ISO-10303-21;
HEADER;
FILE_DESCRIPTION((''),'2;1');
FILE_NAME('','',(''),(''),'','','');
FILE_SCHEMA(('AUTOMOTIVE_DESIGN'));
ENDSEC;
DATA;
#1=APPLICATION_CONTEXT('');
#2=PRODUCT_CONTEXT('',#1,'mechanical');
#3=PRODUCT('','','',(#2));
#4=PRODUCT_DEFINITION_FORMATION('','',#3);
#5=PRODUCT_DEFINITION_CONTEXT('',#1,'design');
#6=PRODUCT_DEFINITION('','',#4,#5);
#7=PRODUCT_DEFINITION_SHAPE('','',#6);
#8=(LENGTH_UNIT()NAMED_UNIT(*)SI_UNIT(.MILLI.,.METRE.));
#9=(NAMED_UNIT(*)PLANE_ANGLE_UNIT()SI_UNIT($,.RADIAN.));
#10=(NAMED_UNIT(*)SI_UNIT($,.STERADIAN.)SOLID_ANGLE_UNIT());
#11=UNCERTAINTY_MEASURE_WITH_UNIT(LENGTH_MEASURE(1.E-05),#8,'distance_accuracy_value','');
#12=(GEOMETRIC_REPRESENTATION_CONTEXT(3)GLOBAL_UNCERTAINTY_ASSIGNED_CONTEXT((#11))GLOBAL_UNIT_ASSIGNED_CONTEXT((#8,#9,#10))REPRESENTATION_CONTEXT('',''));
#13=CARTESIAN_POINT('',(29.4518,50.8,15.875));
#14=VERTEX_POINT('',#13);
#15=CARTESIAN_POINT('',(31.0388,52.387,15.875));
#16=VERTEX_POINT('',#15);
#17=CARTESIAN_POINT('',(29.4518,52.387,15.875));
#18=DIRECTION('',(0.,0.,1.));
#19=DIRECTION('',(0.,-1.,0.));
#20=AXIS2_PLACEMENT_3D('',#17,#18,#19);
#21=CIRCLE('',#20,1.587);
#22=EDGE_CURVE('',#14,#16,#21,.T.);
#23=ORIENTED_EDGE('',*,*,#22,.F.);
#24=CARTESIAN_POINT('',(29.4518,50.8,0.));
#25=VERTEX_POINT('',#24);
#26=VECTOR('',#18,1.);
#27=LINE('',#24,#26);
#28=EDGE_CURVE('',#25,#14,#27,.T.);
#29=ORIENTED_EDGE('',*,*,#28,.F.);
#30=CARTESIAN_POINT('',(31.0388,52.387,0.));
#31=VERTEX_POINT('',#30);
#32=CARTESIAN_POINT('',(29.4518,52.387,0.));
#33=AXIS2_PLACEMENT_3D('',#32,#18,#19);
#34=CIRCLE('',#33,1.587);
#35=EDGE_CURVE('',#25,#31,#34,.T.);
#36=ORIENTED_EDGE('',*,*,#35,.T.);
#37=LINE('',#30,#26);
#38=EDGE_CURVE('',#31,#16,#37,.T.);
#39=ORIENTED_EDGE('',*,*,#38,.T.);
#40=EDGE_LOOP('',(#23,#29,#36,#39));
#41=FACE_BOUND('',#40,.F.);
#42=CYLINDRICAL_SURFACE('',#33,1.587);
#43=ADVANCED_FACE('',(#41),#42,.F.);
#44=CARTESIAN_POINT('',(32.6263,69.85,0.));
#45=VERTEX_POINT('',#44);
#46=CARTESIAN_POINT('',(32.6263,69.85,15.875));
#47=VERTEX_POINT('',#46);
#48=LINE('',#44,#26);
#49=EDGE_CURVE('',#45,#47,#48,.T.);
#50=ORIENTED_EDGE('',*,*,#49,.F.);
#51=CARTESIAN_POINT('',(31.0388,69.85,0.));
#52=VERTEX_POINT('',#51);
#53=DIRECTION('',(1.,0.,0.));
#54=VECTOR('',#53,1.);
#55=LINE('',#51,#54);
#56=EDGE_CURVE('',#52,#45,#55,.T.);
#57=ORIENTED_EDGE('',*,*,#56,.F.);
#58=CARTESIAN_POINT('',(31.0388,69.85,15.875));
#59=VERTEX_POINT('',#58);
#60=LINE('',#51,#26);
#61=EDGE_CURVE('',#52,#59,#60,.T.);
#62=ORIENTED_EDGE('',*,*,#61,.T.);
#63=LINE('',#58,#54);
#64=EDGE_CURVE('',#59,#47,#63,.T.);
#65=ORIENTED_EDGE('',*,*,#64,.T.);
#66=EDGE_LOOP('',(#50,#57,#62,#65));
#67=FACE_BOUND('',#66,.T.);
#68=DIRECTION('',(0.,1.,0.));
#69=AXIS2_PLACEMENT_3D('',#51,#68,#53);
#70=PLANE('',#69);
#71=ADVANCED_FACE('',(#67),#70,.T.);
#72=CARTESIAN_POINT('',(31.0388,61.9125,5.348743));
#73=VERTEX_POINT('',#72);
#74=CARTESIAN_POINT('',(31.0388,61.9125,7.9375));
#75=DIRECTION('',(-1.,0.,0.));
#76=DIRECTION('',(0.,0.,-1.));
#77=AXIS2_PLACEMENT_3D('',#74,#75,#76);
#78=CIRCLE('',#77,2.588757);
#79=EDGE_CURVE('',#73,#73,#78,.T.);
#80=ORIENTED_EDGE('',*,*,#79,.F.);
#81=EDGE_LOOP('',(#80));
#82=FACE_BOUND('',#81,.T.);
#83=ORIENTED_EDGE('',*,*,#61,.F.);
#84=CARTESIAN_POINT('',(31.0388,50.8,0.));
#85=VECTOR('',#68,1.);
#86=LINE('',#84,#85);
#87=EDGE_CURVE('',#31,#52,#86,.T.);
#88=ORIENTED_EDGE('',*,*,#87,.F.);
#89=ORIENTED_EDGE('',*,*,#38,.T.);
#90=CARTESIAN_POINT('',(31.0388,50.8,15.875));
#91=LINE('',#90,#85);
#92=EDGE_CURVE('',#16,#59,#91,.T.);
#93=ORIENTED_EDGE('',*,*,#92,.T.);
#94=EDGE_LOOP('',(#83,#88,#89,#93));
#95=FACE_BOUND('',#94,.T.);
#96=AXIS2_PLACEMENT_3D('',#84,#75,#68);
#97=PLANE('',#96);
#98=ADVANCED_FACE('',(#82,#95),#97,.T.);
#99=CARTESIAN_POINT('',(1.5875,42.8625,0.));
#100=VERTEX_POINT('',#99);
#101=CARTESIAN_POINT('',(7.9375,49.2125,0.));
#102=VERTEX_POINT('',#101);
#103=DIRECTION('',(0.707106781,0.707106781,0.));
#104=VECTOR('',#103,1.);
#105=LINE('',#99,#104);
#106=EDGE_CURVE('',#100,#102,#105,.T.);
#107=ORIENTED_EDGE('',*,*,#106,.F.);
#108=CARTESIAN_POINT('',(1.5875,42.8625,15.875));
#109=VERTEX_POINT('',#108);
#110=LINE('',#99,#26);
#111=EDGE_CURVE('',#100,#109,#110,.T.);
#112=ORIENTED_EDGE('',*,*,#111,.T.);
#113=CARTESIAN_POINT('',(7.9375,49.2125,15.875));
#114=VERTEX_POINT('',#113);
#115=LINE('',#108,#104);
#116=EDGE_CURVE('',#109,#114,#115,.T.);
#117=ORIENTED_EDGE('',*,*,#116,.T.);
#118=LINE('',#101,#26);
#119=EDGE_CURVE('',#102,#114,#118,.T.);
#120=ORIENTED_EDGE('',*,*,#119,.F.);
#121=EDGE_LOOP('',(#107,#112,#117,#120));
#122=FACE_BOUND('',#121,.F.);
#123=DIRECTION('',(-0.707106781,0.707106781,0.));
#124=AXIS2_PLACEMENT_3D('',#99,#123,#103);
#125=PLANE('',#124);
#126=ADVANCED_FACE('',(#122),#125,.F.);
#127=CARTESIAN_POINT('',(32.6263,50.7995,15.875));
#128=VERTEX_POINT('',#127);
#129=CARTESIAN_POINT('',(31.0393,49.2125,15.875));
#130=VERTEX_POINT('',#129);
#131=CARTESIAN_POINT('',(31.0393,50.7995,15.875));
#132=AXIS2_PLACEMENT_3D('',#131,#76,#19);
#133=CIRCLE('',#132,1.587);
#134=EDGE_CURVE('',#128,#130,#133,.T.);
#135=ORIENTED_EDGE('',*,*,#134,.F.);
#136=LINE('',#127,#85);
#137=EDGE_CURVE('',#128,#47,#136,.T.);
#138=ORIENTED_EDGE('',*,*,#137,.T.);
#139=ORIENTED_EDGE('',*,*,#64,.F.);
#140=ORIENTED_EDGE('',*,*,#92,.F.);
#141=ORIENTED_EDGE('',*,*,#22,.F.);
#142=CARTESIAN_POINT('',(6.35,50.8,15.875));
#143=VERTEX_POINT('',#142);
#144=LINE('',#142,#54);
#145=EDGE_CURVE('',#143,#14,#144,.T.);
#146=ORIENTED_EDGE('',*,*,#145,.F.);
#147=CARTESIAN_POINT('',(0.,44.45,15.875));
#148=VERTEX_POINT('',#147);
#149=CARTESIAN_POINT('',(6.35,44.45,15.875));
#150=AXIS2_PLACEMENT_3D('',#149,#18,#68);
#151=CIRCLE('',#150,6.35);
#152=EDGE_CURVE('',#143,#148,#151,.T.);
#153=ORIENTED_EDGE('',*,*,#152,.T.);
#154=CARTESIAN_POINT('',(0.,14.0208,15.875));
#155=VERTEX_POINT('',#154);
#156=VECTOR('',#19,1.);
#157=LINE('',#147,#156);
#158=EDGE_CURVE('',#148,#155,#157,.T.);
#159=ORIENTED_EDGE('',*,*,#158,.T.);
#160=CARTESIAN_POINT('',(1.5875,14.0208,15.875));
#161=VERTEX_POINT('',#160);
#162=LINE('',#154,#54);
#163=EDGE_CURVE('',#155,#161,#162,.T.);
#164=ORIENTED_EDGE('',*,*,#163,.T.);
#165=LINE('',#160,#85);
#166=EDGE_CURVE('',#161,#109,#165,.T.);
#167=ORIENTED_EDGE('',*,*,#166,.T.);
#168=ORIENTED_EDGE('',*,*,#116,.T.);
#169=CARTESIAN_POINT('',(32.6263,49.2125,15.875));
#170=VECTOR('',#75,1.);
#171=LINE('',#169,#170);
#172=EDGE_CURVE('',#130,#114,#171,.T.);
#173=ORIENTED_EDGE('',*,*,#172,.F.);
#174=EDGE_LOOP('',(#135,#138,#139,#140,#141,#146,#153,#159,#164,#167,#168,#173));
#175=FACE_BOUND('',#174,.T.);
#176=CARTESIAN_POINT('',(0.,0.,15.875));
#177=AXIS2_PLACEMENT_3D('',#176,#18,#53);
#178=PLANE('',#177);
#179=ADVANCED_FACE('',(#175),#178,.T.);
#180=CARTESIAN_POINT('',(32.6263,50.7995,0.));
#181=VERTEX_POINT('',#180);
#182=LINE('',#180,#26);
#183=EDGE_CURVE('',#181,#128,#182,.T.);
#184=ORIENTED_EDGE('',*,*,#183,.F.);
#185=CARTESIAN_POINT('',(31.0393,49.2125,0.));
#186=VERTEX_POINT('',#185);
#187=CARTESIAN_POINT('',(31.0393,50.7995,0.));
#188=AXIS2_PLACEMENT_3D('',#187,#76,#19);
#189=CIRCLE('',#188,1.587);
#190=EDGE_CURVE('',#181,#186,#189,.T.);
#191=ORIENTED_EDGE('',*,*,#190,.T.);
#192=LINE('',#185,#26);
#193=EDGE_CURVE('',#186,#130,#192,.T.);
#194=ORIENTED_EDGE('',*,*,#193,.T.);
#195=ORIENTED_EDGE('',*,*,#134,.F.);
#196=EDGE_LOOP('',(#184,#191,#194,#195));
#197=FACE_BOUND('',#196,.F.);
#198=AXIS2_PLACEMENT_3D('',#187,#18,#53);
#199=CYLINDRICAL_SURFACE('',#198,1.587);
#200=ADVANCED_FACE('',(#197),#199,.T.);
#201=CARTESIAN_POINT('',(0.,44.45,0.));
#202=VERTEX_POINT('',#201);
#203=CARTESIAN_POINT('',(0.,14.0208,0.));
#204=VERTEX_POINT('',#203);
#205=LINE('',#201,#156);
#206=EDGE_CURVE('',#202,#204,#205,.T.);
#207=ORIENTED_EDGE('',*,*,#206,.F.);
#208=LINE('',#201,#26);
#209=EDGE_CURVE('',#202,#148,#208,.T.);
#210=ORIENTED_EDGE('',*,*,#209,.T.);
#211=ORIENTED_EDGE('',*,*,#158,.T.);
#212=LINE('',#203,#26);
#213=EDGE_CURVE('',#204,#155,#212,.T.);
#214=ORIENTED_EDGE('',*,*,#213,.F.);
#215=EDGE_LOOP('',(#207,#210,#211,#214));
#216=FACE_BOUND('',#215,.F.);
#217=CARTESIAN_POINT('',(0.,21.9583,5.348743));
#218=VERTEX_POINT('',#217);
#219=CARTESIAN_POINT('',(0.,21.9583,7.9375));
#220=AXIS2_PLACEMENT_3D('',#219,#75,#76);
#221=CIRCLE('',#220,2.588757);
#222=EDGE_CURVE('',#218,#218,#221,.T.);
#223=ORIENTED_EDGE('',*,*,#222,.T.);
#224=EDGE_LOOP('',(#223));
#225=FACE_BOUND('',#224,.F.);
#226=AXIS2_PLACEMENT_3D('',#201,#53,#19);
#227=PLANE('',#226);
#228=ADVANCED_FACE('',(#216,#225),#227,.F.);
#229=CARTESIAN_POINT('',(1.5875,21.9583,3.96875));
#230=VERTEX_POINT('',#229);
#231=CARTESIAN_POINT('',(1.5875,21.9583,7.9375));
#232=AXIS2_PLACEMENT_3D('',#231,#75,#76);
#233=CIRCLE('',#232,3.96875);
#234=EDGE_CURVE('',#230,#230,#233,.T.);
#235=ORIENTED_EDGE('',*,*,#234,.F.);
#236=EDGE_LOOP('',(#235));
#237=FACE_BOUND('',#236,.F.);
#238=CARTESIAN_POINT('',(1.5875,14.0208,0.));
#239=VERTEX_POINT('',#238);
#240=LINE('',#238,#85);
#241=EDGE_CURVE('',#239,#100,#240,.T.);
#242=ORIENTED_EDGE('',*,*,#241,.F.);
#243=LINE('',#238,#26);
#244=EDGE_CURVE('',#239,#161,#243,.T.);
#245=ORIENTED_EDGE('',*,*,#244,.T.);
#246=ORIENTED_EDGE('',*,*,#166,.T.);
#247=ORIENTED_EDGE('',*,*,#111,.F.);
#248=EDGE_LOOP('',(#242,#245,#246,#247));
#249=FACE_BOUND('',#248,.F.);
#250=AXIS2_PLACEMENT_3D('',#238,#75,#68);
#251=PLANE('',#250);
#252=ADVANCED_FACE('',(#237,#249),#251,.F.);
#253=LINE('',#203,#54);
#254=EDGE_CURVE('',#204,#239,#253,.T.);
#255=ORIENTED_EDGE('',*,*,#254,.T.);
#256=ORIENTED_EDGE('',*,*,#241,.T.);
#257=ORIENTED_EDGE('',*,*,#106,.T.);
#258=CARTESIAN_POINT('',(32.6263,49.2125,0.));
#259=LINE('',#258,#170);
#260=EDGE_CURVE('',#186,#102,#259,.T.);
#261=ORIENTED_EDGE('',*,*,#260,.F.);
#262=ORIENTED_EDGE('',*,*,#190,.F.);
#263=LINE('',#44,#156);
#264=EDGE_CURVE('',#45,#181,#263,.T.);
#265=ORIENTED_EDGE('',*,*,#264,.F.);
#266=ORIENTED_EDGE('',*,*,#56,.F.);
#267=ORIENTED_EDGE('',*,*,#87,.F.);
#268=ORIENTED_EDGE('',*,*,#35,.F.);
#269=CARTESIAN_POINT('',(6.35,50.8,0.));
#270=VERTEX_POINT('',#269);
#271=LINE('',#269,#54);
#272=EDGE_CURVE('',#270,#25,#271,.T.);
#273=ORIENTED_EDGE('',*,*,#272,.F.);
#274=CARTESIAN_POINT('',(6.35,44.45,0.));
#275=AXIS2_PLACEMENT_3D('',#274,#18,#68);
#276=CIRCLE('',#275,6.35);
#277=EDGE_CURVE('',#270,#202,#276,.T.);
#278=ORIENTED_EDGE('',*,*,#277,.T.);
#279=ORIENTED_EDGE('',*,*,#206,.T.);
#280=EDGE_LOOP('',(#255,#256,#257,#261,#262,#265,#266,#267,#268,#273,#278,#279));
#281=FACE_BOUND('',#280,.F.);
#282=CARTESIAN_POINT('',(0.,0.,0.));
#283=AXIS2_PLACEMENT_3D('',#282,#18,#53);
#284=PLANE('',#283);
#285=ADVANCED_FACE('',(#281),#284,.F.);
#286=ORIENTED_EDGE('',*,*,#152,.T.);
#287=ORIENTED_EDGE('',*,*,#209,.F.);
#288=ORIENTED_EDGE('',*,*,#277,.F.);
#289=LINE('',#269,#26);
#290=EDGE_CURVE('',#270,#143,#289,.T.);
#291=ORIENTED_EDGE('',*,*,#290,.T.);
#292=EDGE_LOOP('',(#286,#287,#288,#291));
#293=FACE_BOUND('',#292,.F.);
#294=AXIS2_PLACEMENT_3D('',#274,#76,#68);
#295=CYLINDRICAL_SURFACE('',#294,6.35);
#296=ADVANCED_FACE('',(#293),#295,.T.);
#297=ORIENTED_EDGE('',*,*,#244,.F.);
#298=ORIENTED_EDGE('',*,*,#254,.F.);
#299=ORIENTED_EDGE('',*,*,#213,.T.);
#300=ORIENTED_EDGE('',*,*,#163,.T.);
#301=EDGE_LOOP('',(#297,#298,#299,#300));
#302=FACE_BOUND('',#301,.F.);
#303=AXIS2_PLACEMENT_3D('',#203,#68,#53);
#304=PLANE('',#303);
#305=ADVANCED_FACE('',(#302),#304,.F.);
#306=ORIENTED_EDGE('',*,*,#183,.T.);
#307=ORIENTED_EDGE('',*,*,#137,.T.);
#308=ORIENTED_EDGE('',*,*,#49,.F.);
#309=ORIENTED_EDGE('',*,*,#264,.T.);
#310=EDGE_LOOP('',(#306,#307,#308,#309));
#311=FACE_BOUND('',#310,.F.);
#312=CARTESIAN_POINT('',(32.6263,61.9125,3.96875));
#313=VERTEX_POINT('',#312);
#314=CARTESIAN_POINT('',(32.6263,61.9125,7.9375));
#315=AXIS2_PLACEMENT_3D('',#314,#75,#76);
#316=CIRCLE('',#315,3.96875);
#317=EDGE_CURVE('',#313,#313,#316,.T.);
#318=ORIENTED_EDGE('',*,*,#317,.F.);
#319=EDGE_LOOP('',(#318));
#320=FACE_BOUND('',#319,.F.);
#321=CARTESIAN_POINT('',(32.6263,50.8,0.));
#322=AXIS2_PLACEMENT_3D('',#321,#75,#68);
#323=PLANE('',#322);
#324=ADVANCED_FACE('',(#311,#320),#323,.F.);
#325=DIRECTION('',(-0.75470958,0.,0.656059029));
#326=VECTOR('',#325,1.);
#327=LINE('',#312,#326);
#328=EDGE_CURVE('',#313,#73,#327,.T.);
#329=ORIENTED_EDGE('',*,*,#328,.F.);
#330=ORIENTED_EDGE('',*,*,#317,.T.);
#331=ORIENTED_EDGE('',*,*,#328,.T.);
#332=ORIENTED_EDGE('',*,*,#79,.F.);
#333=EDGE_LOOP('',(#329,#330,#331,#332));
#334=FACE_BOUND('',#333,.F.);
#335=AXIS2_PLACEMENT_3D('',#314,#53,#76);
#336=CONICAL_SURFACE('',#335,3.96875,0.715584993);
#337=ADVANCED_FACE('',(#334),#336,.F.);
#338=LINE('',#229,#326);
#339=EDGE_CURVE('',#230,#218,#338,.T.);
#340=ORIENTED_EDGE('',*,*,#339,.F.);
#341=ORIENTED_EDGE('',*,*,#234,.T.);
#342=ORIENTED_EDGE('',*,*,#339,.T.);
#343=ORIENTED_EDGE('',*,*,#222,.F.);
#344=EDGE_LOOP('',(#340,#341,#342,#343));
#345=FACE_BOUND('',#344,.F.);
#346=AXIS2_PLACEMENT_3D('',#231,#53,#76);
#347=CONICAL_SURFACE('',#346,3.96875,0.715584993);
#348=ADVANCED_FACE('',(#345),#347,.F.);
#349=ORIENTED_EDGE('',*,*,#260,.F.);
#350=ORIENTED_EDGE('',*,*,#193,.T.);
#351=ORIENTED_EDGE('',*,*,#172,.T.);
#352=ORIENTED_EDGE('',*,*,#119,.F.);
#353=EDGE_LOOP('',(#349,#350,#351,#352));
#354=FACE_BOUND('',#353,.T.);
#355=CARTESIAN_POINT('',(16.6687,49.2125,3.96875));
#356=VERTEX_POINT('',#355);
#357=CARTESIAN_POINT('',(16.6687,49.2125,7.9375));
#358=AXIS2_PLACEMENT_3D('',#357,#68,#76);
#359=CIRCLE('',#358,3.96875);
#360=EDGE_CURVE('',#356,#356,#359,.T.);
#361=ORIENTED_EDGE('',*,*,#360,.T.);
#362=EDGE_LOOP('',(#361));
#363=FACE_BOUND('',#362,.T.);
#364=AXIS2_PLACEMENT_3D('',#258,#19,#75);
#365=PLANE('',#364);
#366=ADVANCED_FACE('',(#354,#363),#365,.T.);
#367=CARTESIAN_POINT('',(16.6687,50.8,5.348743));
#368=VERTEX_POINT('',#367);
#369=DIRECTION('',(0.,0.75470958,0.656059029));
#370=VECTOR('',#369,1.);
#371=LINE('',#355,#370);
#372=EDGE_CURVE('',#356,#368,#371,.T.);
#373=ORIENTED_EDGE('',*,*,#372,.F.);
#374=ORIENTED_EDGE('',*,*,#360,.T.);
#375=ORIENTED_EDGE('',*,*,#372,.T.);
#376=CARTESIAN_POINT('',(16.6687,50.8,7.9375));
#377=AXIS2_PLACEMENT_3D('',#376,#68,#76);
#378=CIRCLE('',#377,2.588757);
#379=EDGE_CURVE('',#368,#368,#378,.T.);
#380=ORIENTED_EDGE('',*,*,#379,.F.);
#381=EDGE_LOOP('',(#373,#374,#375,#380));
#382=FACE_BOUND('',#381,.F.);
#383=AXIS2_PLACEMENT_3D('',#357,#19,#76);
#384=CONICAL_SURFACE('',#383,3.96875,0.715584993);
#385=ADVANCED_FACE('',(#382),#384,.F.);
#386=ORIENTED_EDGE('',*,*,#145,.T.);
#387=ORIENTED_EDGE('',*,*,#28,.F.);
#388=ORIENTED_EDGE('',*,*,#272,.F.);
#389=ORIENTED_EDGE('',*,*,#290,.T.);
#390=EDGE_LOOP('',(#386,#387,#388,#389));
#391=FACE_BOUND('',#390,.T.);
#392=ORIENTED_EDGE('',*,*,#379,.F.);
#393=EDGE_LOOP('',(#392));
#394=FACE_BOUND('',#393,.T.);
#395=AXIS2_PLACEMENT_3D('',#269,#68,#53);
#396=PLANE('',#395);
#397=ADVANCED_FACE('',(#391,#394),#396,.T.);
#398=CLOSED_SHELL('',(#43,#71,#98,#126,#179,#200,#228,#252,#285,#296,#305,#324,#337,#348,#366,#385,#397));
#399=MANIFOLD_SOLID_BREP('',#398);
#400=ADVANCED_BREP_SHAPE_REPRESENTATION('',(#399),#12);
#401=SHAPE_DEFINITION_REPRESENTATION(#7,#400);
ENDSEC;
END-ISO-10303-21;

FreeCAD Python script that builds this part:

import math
import FreeCAD as App
import Part
import Sketcher
from FreeCAD import Vector
Q = App.Units.Quantity


def edges_at(feature, points):
    """Names of the edges that pass closest to the given points."""
    edges = feature.Shape.Edges
    near = lambda p: min(range(len(edges)), key=lambda i: edges[i].distToShape(Part.Vertex(*p))[0])
    return sorted({f"Edge{near(p) + 1}" for p in points})

doc = App.newDocument("Part")
body = doc.addObject("PartDesign::Body", "Body")

# Sketch on XY plane
sketch1 = body.newObject("Sketcher::SketchObject", "Sketch")
sketch1.AttachmentSupport = (doc.getObject("XY_Plane"), [""])
sketch1.MapMode = "FlatFace"
sketch1.addGeometry([
    Part.LineSegment(Vector(0, 14, 0), Vector(1.6, 14, 0)),  # 0
    Part.LineSegment(Vector(1.6, 14, 0), Vector(1.6, 42.9, 0)),  # 1
    Part.LineSegment(Vector(1.6, 42.9, 0), Vector(7.9, 49.2, 0)),  # 2
    Part.LineSegment(Vector(7.9, 49.2, 0), Vector(32.6, 49.2, 0)),  # 3
    Part.LineSegment(Vector(32.6, 49.2, 0), Vector(32.6, 69.8, 0)),  # 4
    Part.LineSegment(Vector(32.6, 69.8, 0), Vector(31, 69.8, 0)),  # 5
    Part.LineSegment(Vector(31, 69.8, 0), Vector(31, 50.8, 0)),  # 6
    Part.LineSegment(Vector(31, 50.8, 0), Vector(6.3, 50.8, 0)),  # 7
    Part.ArcOfCircle(Part.Circle(Vector(6.3, 44.5, 0), Vector(0, 0, 1), 6.3), math.radians(90), math.radians(180)),  # 8
    Part.LineSegment(Vector(0, 44.5, 0), Vector(0, 14, 0)),  # 9
], False)
sketch1.addConstraint([
    Sketcher.Constraint("Coincident", 0, 2, 1, 1),
    Sketcher.Constraint("Coincident", 1, 2, 2, 1),
    Sketcher.Constraint("Coincident", 2, 2, 3, 1),
    Sketcher.Constraint("Coincident", 3, 2, 4, 1),
    Sketcher.Constraint("Coincident", 4, 2, 5, 1),
    Sketcher.Constraint("Coincident", 5, 2, 6, 1),
    Sketcher.Constraint("Coincident", 6, 2, 7, 1),
    Sketcher.Constraint("Tangent", 7, 2, 8, 1),
    Sketcher.Constraint("Tangent", 8, 2, 9, 1),
    Sketcher.Constraint("Coincident", 9, 2, 0, 1),
    Sketcher.Constraint("Horizontal", 0),
    Sketcher.Constraint("Vertical", 1),
    Sketcher.Constraint("Horizontal", 3),
    Sketcher.Constraint("Vertical", 4),
    Sketcher.Constraint("Horizontal", 5),
    Sketcher.Constraint("Vertical", 6),
    Sketcher.Constraint("Horizontal", 7),
    Sketcher.Constraint("Vertical", 9),
    Sketcher.Constraint("PointOnObject", 8, 2, -2),
    Sketcher.Constraint("Equal", 0, 5),
    Sketcher.Constraint("Equal", 3, 7),
    Sketcher.Constraint("DistanceY", 6, 2, 6, 1, Q("0.75 in")),
    Sketcher.Constraint("DistanceX", 0, 1, 0, 2, Q("0.0625 in")),
    Sketcher.Constraint("DistanceX", 3, 1, 3, 2, Q("0.972 in")),
    Sketcher.Constraint("Radius", 8, Q("0.25 in")),
    Sketcher.Constraint("DistanceY", -1, 1, 6, 2, Q("2 in")),
    Sketcher.Constraint("Angle", 2, Q("45 deg")),
    Sketcher.Constraint("DistanceY", 1, 2, 8, 3, Q("0.0625 in")),
    Sketcher.Constraint("DistanceY", 9, 2, 9, 1, Q("1.198 in")),
])
pad1 = body.newObject("PartDesign::Pad", "Pad")
pad1.Profile = sketch1
pad1.Length = Q("0.625 in")
doc.recompute()

fillet = body.newObject("PartDesign::Fillet", "Fillet")
fillet.Base = (pad1, edges_at(pad1, [(31.039, 50.8, 7.938), (32.626, 49.212, 7.938)]))
fillet.Radius = Q("0.0625 in")

# Sketch on XZ plane
sketch2 = body.newObject("Sketcher::SketchObject", "Sketch001")
sketch2.AttachmentSupport = (doc.getObject("XZ_Plane"), [""])
sketch2.MapMode = "FlatFace"
sketch2.AttachmentOffset = App.Placement(Vector(0, 0, -1.9375 * 25.4), App.Rotation())
sketch2.addGeometry(Part.Circle(Vector(16.7, 7.9, 0), Vector(0, 0, 1), 2.4), False)
sketch2.addConstraint([
    Sketcher.Constraint("Diameter", 0, Q("0.1875 in")),
    Sketcher.Constraint("DistanceX", -1, 1, 0, 3, Q("0.656248 in")),
    Sketcher.Constraint("DistanceY", -1, 1, 0, 3, Q("0.3125 in")),
])
doc.recompute()
hole = body.newObject("PartDesign::Hole", "Hole")
hole.Profile = sketch2
hole.ThreadType = "None"
hole.Diameter = Q("0.1875 in")
hole.DepthType = "ThroughAll"
hole.HoleCutType = "Countersink"
hole.HoleCutDiameter = Q("0.3125 in")
hole.HoleCutCountersinkAngle = 82

# Sketch on YZ plane
sketch3 = body.newObject("Sketcher::SketchObject", "Sketch002")
sketch3.AttachmentSupport = (doc.getObject("YZ_Plane"), [""])
sketch3.MapMode = "FlatFace"
sketch3.AttachmentOffset = App.Placement(Vector(0, 0, 1.2845 * 25.4), App.Rotation())
sketch3.addGeometry(Part.Circle(Vector(61.9, 7.9, 0), Vector(0, 0, 1), 2.4), False)
sketch3.addConstraint([
    Sketcher.Constraint("Diameter", 0, Q("0.1875 in")),
    Sketcher.Constraint("DistanceX", -1, 1, 0, 3, Q("2.4375 in")),
    Sketcher.Constraint("DistanceY", -1, 1, 0, 3, Q("0.3125 in")),
])
doc.recompute()
hole2 = body.newObject("PartDesign::Hole", "Hole001")
hole2.Profile = sketch3
hole2.ThreadType = "None"
hole2.Diameter = Q("0.1875 in")
hole2.DepthType = "ThroughAll"
hole2.HoleCutType = "Countersink"
hole2.HoleCutDiameter = Q("0.3125 in")
hole2.HoleCutCountersinkAngle = 82

# Sketch on YZ plane
sketch4 = body.newObject("Sketcher::SketchObject", "Sketch003")
sketch4.AttachmentSupport = (doc.getObject("YZ_Plane"), [""])
sketch4.MapMode = "FlatFace"
sketch4.AttachmentOffset = App.Placement(Vector(0, 0, 0.0625 * 25.4), App.Rotation())
sketch4.addGeometry(Part.Circle(Vector(22, 7.9, 0), Vector(0, 0, 1), 2.4), False)
sketch4.addConstraint([
    Sketcher.Constraint("Diameter", 0, Q("0.1875 in")),
    Sketcher.Constraint("DistanceY", -1, 1, 0, 3, Q("0.3125 in")),
    Sketcher.Constraint("DistanceX", -1, 1, 0, 3, Q("0.8645 in")),
])
doc.recompute()
hole3 = body.newObject("PartDesign::Hole", "Hole002")
hole3.Profile = sketch4
hole3.ThreadType = "None"
hole3.Diameter = Q("0.1875 in")
hole3.DepthType = "ThroughAll"
hole3.HoleCutType = "Countersink"
hole3.HoleCutDiameter = Q("0.3125 in")
hole3.HoleCutCountersinkAngle = 82

doc.recompute()
